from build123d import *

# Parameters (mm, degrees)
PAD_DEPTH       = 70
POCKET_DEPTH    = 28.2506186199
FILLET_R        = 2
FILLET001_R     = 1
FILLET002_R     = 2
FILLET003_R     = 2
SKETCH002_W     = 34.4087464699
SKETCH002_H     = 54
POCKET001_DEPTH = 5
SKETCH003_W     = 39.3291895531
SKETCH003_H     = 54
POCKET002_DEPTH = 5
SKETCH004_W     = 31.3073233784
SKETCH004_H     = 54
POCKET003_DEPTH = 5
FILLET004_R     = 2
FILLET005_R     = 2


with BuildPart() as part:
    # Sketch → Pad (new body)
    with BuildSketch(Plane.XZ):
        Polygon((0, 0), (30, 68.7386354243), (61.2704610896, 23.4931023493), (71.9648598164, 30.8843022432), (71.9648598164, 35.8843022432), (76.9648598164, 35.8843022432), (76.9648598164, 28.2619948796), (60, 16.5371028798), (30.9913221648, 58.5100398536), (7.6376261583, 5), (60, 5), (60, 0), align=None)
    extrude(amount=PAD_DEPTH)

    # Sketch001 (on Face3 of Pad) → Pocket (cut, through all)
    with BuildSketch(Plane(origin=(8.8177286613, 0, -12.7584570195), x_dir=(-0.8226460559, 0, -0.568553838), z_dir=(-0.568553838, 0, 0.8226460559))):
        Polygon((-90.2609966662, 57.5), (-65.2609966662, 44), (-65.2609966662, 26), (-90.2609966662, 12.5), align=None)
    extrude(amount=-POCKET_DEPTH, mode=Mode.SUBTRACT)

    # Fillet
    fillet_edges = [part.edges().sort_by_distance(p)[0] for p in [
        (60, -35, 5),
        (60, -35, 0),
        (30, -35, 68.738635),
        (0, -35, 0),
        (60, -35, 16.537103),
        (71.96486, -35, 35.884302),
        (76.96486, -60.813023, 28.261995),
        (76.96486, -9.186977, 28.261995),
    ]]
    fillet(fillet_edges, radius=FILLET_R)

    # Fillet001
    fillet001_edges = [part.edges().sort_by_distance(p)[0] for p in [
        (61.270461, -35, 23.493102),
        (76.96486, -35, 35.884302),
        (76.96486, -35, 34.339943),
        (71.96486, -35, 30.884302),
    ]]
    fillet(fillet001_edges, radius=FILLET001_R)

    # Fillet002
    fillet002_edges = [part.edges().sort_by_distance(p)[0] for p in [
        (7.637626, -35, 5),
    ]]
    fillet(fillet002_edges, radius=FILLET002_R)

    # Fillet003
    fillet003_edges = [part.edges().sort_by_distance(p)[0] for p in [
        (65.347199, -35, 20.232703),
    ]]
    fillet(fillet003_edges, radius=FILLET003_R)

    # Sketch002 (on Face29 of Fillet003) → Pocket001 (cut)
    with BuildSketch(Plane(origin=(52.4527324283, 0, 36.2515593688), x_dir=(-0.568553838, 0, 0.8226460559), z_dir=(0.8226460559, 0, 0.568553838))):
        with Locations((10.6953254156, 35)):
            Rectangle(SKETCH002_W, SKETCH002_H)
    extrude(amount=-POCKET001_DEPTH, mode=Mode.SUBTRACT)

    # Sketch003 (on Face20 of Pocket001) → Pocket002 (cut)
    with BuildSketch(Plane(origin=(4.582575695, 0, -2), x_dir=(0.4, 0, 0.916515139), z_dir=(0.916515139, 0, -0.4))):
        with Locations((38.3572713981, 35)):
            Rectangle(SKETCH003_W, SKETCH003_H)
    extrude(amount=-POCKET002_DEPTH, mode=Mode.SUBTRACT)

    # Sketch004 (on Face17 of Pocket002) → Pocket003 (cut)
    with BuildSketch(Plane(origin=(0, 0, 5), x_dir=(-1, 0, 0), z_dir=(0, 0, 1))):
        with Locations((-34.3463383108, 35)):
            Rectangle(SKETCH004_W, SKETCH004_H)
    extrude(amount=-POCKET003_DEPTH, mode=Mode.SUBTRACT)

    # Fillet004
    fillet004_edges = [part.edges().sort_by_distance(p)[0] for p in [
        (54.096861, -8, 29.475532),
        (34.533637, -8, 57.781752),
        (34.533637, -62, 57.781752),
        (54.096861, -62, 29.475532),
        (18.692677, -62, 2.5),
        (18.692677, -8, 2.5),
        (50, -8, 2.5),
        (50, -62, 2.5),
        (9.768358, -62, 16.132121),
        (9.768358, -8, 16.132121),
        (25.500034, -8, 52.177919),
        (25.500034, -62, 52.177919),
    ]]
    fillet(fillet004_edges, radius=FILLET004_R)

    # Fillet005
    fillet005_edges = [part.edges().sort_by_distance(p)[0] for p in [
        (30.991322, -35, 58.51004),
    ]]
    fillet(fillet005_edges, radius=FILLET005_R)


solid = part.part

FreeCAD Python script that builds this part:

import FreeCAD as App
import Part
import Sketcher
Q = App.Units.Quantity


def edges_at(feature, points):
    """Names of the edges that pass closest to the given points."""
    edges = feature.Shape.Edges
    near = lambda p: min(range(len(edges)), key=lambda i: edges[i].distToShape(Part.Vertex(*p))[0])
    return sorted({f"Edge{near(p) + 1}" for p in points})

doc = App.newDocument("Part")
body = doc.addObject("PartDesign::Body", "Body")

# Sketch on XZ plane
sketch1 = body.newObject("Sketcher::SketchObject", "Sketch")
sketch1.AttachmentSupport = (doc.getObject("XZ_Plane"), [""])
sketch1.MapMode = "FlatFace"
sketch1.addGeometry([
    Part.LineSegment(App.Vector(30, 69, 0), App.Vector(0, 0, 0)),  # 0
    Part.LineSegment(App.Vector(0, 0, 0), App.Vector(60, 0, 0)),  # 1
    Part.LineSegment(App.Vector(60, 0, 0), App.Vector(60, 5, 0)),  # 2
    Part.LineSegment(App.Vector(60, 5, 0), App.Vector(8, 5, 0)),  # 3
    Part.LineSegment(App.Vector(8, 5, 0), App.Vector(31, 59, 0)),  # 4
    Part.LineSegment(App.Vector(31, 59, 0), App.Vector(60, 17, 0)),  # 5
    Part.LineSegment(App.Vector(60, 17, 0), App.Vector(77, 28, 0)),  # 6
    Part.LineSegment(App.Vector(77, 28, 0), App.Vector(77, 36, 0)),  # 7
    Part.LineSegment(App.Vector(77, 36, 0), App.Vector(72, 36, 0)),  # 8
    Part.LineSegment(App.Vector(72, 36, 0), App.Vector(72, 31, 0)),  # 9
    Part.LineSegment(App.Vector(72, 31, 0), App.Vector(61, 23, 0)),  # 10
    Part.LineSegment(App.Vector(61, 23, 0), App.Vector(30, 69, 0)),  # 11
], False)
sketch1.addConstraint([
    Sketcher.Constraint("Coincident", 0, 2, 1, 1),
    Sketcher.Constraint("Coincident", 1, 2, 2, 1),
    Sketcher.Constraint("Coincident", 2, 2, 3, 1),
    Sketcher.Constraint("Coincident", 3, 2, 4, 1),
    Sketcher.Constraint("Coincident", 4, 2, 5, 1),
    Sketcher.Constraint("Coincident", 5, 2, 6, 1),
    Sketcher.Constraint("Coincident", 6, 2, 7, 1),
    Sketcher.Constraint("Coincident", 7, 2, 8, 1),
    Sketcher.Constraint("Coincident", 8, 2, 9, 1),
    Sketcher.Constraint("Coincident", 9, 2, 10, 1),
    Sketcher.Constraint("Coincident", 10, 2, 11, 1),
    Sketcher.Constraint("Coincident", 11, 2, 0, 1),
    Sketcher.Constraint("Horizontal", 1),
    Sketcher.Constraint("Vertical", 2),
    Sketcher.Constraint("Horizontal", 3),
    Sketcher.Constraint("Vertical", 7),
    Sketcher.Constraint("Horizontal", 8),
    Sketcher.Constraint("Vertical", 9),
    Sketcher.Constraint("Coincident", 0, 2, -1, 1),
    Sketcher.Constraint("Parallel", 0, 4),
    Sketcher.Constraint("Perpendicular", 5, 6),
    Sketcher.Constraint("Parallel", 6, 10),
    Sketcher.Constraint("Perpendicular", 10, 11),
    Sketcher.Constraint("Vertical", 2, 2, 5, 2),
    Sketcher.Constraint("Equal", 8, 2),
    Sketcher.Constraint("Equal", 2, 9),
    Sketcher.Constraint("DistanceX", 1, 1, 1, 2, Q("60 mm")),
    Sketcher.Constraint("DistanceX", 8, 2, 8, 1, Q("5 mm")),
    Sketcher.Constraint("Distance", 0, Q("75 mm")),
    Sketcher.Constraint("Distance", 10, Q("13 mm")),
    Sketcher.Constraint("Distance", 11, Q("55 mm")),
    Sketcher.Constraint("DistanceX", -1, 1, 11, 2, Q("30 mm")),
    Sketcher.Constraint("DistanceY", 5, 2, 10, 2, Q("6.955999 mm")),
    Sketcher.Constraint("DistanceY", 5, 2, 7, 2, Q("19.347199 mm")),
    Sketcher.Constraint("Distance", 4, Q("58.38424 mm")),
])
pad1 = body.newObject("PartDesign::Pad", "Pad")
pad1.Profile = sketch1
pad1.Length = 70

# Sketch on an angled plane
sketch2 = body.newObject("Sketcher::SketchObject", "Sketch001")
sketch2.Placement = App.Placement(App.Vector(8.817729, 0, -12.758457), App.Rotation(App.Vector(-0.822646056, 0, -0.568553838), App.Vector(0, -1, 0), App.Vector(-0.568553838, 0, 0.822646056), "ZXY"))
sketch2.addGeometry([
    Part.LineSegment(App.Vector(-65, 44, 0), App.Vector(-90, 58, 0)),
    Part.LineSegment(App.Vector(-90, 58, 0), App.Vector(-90, 13, 0)),
    Part.LineSegment(App.Vector(-90, 13, 0), App.Vector(-65, 26, 0)),
    Part.LineSegment(App.Vector(-65, 26, 0), App.Vector(-65, 44, 0)),
], False)
sketch2.addConstraint([
    Sketcher.Constraint("Coincident", 0, 2, 1, 1),
    Sketcher.Constraint("Coincident", 1, 2, 2, 1),
    Sketcher.Constraint("Coincident", 2, 2, 3, 1),
    Sketcher.Constraint("Coincident", 3, 2, 0, 1),
    Sketcher.Constraint("Vertical", 1),
    Sketcher.Constraint("Vertical", 3),
    Sketcher.Constraint("Equal", 0, 2),
    Sketcher.Constraint("DistanceY", 1, 2, 1, 1, Q("45 mm")),
    Sketcher.Constraint("DistanceY", 3, 1, 3, 2, Q("18 mm")),
    Sketcher.Constraint("DistanceY", -1, 1, 2, 2, Q("26 mm")),
    Sketcher.Constraint("DistanceX", 1, 2, 2, 2, Q("25 mm")),
    Sketcher.Constraint("DistanceX", 0, 2, -1, 1, Q("90.260997 mm")),
])
pocket1 = body.newObject("PartDesign::Pocket", "Pocket")
pocket1.Profile = sketch2
pocket1.Type = "ThroughAll"
doc.recompute()

fillet = body.newObject("PartDesign::Fillet", "Fillet")
fillet.Base = (pocket1, edges_at(pocket1, [
    (60, -35, 5),
    (60, -35, 0),
    (30, -35, 68.739),
    (0, -35, 0),
    (60, -35, 16.537),
    (71.965, -35, 35.884),
    (76.965, -60.813, 28.262),
    (76.965, -9.187, 28.262),
]))
fillet.Radius = 2
doc.recompute()

fillet2 = body.newObject("PartDesign::Fillet", "Fillet001")
fillet2.Base = (fillet, edges_at(fillet, [
    (61.27, -35, 23.493),
    (76.965, -35, 35.884),
    (76.965, -35, 34.34),
    (71.965, -35, 30.884),
]))
fillet2.Radius = 1
doc.recompute()

fillet3 = body.newObject("PartDesign::Fillet", "Fillet002")
fillet3.Base = (fillet2, edges_at(fillet2, [(7.638, -35, 5)]))
fillet3.Radius = 2
doc.recompute()

fillet4 = body.newObject("PartDesign::Fillet", "Fillet003")
fillet4.Base = (fillet3, edges_at(fillet3, [(65.347, -35, 20.233)]))
fillet4.Radius = 2

# Sketch on an angled plane
sketch3 = body.newObject("Sketcher::SketchObject", "Sketch002")
sketch3.Placement = App.Placement(App.Vector(52.452732, 0, 36.251559), App.Rotation(App.Vector(-0.568553838, 0, 0.822646056), App.Vector(0, -1, 0), App.Vector(0.822646056, 0, 0.568553838), "ZXY"))
sketch3.addGeometry([
    Part.LineSegment(App.Vector(-7, 62, 0), App.Vector(-7, 8, 0)),
    Part.LineSegment(App.Vector(-7, 8, 0), App.Vector(28, 8, 0)),
    Part.LineSegment(App.Vector(28, 8, 0), App.Vector(28, 62, 0)),
    Part.LineSegment(App.Vector(28, 62, 0), App.Vector(-7, 62, 0)),
], False)
sketch3.addConstraint([
    Sketcher.Constraint("Coincident", 0, 2, 1, 1),
    Sketcher.Constraint("Coincident", 1, 2, 2, 1),
    Sketcher.Constraint("Coincident", 2, 2, 3, 1),
    Sketcher.Constraint("Coincident", 3, 2, 0, 1),
    Sketcher.Constraint("Vertical", 0),
    Sketcher.Constraint("Horizontal", 1),
    Sketcher.Constraint("Vertical", 2),
    Sketcher.Constraint("Horizontal", 3),
    Sketcher.Constraint("DistanceY", 0, 2, 0, 1, Q("54 mm")),
    Sketcher.Constraint("DistanceY", -1, 1, 0, 2, Q("8 mm")),
    Sketcher.Constraint("DistanceX", -1, 1, 1, 2, Q("27.899699 mm")),
    Sketcher.Constraint("DistanceX", 1, 1, 1, 2, Q("34.408746 mm")),
])
pocket2 = body.newObject("PartDesign::Pocket", "Pocket001")
pocket2.Profile = sketch3
pocket2.Length = 5

# Sketch on an angled plane
sketch4 = body.newObject("Sketcher::SketchObject", "Sketch003")
sketch4.Placement = App.Placement(App.Vector(4.582576, 0, -2), App.Rotation(App.Vector(0.4, 0, 0.916515139), App.Vector(0, -1, 0), App.Vector(0.916515139, 0, -0.4), "ZXY"))
sketch4.addGeometry([
    Part.LineSegment(App.Vector(19, 62, 0), App.Vector(19, 8, 0)),
    Part.LineSegment(App.Vector(19, 8, 0), App.Vector(58, 8, 0)),
    Part.LineSegment(App.Vector(58, 8, 0), App.Vector(58, 62, 0)),
    Part.LineSegment(App.Vector(58, 62, 0), App.Vector(19, 62, 0)),
], False)
sketch4.addConstraint([
    Sketcher.Constraint("Coincident", 0, 2, 1, 1),
    Sketcher.Constraint("Coincident", 1, 2, 2, 1),
    Sketcher.Constraint("Coincident", 2, 2, 3, 1),
    Sketcher.Constraint("Coincident", 3, 2, 0, 1),
    Sketcher.Constraint("Vertical", 0),
    Sketcher.Constraint("Horizontal", 1),
    Sketcher.Constraint("Vertical", 2),
    Sketcher.Constraint("Horizontal", 3),
    Sketcher.Constraint("DistanceY", 0, 2, 0, 1, Q("54 mm")),
    Sketcher.Constraint("DistanceY", -1, 1, 0, 2, Q("8 mm")),
    Sketcher.Constraint("DistanceX", 1, 1, 1, 2, Q("39.32919 mm")),
    Sketcher.Constraint("DistanceX", -1, 1, 0, 2, Q("18.692677 mm")),
])
pocket3 = body.newObject("PartDesign::Pocket", "Pocket002")
pocket3.Profile = sketch4
pocket3.Length = 5

# Sketch on XY plane
sketch5 = body.newObject("Sketcher::SketchObject", "Sketch004")
sketch5.AttachmentSupport = (doc.getObject("XY_Plane"), [""])
sketch5.MapMode = "FlatFace"
sketch5.AttachmentOffset = App.Placement(App.Vector(0, 0, 5), App.Rotation())
sketch5.addGeometry([
    Part.LineSegment(App.Vector(50, -62, 0), App.Vector(50, -8, 0)),
    Part.LineSegment(App.Vector(50, -8, 0), App.Vector(19, -8, 0)),
    Part.LineSegment(App.Vector(19, -8, 0), App.Vector(19, -62, 0)),
    Part.LineSegment(App.Vector(19, -62, 0), App.Vector(50, -62, 0)),
], False)
sketch5.addConstraint([
    Sketcher.Constraint("Coincident", 0, 2, 1, 1),
    Sketcher.Constraint("Coincident", 1, 2, 2, 1),
    Sketcher.Constraint("Coincident", 2, 2, 3, 1),
    Sketcher.Constraint("Coincident", 3, 2, 0, 1),
    Sketcher.Constraint("Vertical", 0),
    Sketcher.Constraint("Horizontal", 1),
    Sketcher.Constraint("Vertical", 2),
    Sketcher.Constraint("Horizontal", 3),
    Sketcher.Constraint("DistanceY", 0, 1, 0, 2, Q("54 mm")),
    Sketcher.Constraint("DistanceX", -1, 1, 0, 2, Q("50 mm")),
    Sketcher.Constraint("DistanceY", 0, 2, -1, 1, Q("8 mm")),
    Sketcher.Constraint("DistanceX", 1, 2, 1, 1, Q("31.307323 mm")),
])
pocket4 = body.newObject("PartDesign::Pocket", "Pocket003")
pocket4.Profile = sketch5
pocket4.Length = 5
doc.recompute()

fillet5 = body.newObject("PartDesign::Fillet", "Fillet004")
fillet5.Base = (pocket4, edges_at(pocket4, [
    (54.097, -8, 29.476),
    (34.534, -8, 57.782),
    (34.534, -62, 57.782),
    (54.097, -62, 29.476),
    (18.693, -62, 2.5),
    (18.693, -8, 2.5),
    (50, -8, 2.5),
    (50, -62, 2.5),
    (9.768, -62, 16.132),
    (9.768, -8, 16.132),
    (25.5, -8, 52.178),
    (25.5, -62, 52.178),
]))
fillet5.Radius = 2
doc.recompute()

fillet6 = body.newObject("PartDesign::Fillet", "Fillet005")
fillet6.Base = (fillet5, edges_at(fillet5, [(30.991, -35, 58.51)]))
fillet6.Radius = 2

doc.recompute()
